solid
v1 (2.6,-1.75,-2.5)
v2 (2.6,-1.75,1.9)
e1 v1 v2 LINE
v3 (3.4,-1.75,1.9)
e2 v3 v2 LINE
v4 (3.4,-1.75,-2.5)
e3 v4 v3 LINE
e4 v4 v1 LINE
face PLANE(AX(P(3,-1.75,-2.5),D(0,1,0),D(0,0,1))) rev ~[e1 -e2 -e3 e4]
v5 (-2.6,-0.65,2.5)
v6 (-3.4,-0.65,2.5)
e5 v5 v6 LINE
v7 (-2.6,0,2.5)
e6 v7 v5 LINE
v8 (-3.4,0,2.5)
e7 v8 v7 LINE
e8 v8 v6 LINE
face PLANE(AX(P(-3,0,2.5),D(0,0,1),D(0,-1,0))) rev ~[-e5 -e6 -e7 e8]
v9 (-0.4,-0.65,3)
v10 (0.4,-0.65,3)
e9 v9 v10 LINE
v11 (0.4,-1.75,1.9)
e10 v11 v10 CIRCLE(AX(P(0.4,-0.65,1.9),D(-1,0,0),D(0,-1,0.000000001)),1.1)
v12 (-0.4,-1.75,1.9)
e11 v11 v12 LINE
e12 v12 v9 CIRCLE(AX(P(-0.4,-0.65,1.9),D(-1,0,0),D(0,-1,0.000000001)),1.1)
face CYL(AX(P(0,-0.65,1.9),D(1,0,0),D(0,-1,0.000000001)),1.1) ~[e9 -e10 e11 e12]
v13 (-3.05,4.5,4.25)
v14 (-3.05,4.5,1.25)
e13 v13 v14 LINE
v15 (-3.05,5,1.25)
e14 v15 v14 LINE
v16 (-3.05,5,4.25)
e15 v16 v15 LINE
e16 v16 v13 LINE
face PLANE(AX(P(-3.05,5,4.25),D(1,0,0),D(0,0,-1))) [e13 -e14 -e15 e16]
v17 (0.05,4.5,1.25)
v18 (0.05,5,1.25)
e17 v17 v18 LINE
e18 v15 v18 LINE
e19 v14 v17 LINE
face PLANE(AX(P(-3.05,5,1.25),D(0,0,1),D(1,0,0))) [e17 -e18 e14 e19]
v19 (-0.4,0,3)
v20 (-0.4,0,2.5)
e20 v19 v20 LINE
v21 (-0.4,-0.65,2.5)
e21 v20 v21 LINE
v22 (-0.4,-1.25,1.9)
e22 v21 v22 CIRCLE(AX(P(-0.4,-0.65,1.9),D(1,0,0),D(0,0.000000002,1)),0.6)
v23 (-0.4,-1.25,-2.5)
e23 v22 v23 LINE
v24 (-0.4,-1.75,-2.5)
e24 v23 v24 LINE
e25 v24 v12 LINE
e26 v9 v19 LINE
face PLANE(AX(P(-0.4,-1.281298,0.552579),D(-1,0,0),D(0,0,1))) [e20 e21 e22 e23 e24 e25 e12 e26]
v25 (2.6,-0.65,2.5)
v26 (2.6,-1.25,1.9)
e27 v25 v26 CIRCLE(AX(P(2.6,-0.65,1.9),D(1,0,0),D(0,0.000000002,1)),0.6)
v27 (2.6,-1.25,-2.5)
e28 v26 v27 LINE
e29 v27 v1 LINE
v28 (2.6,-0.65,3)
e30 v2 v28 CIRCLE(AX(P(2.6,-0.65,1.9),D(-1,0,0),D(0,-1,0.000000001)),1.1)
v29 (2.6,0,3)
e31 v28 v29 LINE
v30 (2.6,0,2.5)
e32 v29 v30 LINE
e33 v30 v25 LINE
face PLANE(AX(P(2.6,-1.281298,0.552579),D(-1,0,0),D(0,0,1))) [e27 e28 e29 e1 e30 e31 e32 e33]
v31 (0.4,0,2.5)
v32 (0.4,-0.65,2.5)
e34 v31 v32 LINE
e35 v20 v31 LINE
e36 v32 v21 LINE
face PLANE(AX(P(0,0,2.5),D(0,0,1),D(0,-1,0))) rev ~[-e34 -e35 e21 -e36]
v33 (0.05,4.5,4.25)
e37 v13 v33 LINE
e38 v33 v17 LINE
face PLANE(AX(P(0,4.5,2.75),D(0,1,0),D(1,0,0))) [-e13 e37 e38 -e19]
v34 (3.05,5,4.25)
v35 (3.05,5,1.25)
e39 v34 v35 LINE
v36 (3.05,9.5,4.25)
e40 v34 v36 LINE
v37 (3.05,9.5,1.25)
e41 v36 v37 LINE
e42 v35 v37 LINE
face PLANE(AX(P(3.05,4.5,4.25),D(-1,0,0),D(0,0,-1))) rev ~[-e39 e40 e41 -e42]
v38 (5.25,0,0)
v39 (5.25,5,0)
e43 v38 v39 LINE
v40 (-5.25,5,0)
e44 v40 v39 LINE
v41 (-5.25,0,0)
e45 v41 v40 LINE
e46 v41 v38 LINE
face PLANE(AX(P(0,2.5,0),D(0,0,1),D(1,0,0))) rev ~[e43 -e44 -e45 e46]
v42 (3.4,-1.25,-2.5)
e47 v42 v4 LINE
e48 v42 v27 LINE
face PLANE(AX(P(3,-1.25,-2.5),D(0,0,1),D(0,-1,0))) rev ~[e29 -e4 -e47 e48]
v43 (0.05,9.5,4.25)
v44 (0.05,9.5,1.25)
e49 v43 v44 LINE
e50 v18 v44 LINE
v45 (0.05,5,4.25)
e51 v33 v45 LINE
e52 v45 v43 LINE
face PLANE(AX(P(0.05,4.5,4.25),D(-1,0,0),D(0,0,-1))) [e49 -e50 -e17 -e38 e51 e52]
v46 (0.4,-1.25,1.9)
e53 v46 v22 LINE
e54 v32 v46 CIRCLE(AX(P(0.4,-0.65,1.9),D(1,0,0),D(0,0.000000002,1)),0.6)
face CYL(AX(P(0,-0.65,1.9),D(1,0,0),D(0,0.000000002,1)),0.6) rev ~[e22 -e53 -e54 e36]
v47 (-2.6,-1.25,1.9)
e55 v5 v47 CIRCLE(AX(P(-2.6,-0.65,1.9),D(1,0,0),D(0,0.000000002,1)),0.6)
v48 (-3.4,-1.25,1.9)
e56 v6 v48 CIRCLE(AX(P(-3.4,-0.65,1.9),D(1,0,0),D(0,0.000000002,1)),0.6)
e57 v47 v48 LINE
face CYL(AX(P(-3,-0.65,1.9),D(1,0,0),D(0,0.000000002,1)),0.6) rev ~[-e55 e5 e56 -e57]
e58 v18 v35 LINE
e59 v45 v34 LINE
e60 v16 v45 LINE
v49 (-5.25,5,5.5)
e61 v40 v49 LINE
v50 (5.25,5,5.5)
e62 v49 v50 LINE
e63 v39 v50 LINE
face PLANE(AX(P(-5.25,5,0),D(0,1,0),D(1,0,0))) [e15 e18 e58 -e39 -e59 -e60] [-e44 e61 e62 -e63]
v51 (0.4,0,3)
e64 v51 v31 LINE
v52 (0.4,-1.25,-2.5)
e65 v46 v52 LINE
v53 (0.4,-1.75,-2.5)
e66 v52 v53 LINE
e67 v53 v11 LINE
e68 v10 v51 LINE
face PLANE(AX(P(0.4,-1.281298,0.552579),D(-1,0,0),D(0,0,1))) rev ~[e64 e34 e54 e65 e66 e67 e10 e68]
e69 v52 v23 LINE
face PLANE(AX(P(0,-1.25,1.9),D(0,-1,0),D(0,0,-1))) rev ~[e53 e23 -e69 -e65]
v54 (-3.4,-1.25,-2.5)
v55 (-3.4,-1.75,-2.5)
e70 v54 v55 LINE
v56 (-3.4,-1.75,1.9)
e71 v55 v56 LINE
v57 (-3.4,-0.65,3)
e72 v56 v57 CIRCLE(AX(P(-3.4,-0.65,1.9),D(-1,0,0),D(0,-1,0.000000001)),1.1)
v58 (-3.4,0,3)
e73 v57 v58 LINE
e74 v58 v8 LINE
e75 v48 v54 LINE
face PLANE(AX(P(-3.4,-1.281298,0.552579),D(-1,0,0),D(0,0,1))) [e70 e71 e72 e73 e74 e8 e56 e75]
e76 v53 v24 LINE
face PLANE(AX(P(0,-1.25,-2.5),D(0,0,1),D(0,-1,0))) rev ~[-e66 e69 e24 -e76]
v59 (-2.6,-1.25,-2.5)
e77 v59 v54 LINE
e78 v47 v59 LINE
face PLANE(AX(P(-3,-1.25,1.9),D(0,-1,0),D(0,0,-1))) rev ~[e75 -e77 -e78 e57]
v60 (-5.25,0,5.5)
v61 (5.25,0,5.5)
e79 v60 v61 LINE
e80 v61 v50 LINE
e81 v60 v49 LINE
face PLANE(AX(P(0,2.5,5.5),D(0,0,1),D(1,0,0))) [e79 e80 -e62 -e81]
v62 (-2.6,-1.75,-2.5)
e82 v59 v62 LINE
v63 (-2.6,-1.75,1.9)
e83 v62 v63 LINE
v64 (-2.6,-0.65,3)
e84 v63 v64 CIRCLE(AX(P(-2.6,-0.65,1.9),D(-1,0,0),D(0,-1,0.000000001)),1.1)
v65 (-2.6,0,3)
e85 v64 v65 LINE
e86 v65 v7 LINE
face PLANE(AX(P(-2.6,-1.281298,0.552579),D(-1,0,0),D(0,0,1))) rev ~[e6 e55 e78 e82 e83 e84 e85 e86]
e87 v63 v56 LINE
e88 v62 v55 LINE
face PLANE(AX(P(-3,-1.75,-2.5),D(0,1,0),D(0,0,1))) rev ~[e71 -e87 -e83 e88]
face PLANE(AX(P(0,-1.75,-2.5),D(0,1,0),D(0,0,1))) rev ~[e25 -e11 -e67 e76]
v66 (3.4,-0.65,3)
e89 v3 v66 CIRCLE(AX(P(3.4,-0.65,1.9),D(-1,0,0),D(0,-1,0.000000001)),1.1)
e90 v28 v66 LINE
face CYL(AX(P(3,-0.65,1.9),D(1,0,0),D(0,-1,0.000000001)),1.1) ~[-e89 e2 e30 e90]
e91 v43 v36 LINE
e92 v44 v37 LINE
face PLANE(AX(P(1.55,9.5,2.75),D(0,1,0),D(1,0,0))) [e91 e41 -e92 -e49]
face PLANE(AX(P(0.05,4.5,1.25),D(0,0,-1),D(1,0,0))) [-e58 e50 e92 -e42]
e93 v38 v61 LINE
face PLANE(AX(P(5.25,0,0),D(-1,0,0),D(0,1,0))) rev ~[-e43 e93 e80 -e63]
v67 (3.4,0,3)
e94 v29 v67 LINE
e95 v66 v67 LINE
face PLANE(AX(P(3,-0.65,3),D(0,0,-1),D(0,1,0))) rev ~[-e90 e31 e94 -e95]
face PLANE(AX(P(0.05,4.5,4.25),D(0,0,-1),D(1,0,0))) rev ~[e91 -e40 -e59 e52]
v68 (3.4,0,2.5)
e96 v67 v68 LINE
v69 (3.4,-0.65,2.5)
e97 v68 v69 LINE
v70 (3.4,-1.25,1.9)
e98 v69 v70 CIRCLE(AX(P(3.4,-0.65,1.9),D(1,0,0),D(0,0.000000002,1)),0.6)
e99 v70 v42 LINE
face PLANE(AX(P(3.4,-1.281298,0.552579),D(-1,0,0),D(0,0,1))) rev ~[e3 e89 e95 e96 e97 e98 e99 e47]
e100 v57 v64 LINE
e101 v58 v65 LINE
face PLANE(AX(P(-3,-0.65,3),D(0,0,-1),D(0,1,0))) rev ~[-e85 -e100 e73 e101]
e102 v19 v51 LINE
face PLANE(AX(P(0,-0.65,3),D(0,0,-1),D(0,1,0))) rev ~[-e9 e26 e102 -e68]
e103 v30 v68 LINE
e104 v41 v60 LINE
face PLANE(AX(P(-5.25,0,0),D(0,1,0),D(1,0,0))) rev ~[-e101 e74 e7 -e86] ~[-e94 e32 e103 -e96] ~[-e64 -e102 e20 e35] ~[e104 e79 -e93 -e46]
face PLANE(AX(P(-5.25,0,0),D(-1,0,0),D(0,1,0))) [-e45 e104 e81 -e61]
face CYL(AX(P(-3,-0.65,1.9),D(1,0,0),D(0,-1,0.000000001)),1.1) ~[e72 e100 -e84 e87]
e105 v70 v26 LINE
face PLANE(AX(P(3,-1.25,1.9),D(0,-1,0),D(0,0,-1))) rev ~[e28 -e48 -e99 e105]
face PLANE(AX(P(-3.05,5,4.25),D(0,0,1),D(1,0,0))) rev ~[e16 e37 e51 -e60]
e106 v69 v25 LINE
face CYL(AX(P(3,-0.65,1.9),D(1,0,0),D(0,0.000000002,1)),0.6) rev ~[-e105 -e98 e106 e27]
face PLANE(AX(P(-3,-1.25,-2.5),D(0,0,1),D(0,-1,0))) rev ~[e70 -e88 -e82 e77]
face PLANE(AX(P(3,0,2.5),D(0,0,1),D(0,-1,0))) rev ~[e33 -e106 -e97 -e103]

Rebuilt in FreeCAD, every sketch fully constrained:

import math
import FreeCAD as App
import Part
import Sketcher
Q = App.Units.Quantity


def add_polygon(sketch, points):
    """Adds a closed chain of lines whose ends are joined by coincident constraints."""
    first, n = sketch.GeometryCount, len(points)
    for a, b in zip(points, points[1:] + points[:1]):
        sketch.addGeometry(Part.LineSegment(App.Vector(*a, 0), App.Vector(*b, 0)), False)
    for i in range(n):
        sketch.addConstraint(Sketcher.Constraint("Coincident", first + i, 2, first + (i + 1) % n, 1))

doc = App.newDocument("Part")
params = doc.addObject("Spreadsheet::Sheet", "Params")
for row, (alias, value) in enumerate([
    ("sketch1_height", "5 mm"),
    ("sketch1_width", "10.5 mm"),
    ("pad1_length", "5.5 mm"),
    ("sketch2_height", "3 mm"),
    ("sketch2_width", "6.1 mm"),
    ("pocket1_length", "0.5 mm"),
    ("sketch3_width", "3 mm"),
    ("pad2_length", "5 mm"),
    ("sketch4_radius", "1.1 mm"),
    ("sketch4_radius2", "0.6 mm"),
    ("sketch4_height", "4.4 mm"),
    ("sketch4_width", "0.65 mm"),
    ("pad3_length", "0.8 mm"),
    ("linearpattern_pitch", "3 mm"),
    ("linearpattern2_pitch", "3 mm"),
], start=1):
    params.set(f"A{row}", alias)
    params.set(f"B{row}", "=" + value)
    params.setAlias(f"B{row}", alias)

body = doc.addObject("PartDesign::Body", "Body")

# Sketch on XY plane
sketch1 = doc.addObject("Sketcher::SketchObject", "Sketch")
body.addObject(sketch1)
sketch1.AttachmentSupport = (doc.XY_Plane, [""])
sketch1.MapMode = "FlatFace"
add_polygon(sketch1, [(-5, 5), (-5, 0), (5, 0), (5, 5)])  # lines 0-3
sketch1.addConstraint([
    Sketcher.Constraint("Vertical", 0),
    Sketcher.Constraint("Horizontal", 1),
    Sketcher.Constraint("Vertical", 2),
    Sketcher.Constraint("Horizontal", 3),
    Sketcher.Constraint("Symmetric", 0, 2, 1, 2, -1, 1),
    Sketcher.Constraint("DistanceY", 0, 2, 0, 1, Q("5 mm")),
    Sketcher.Constraint("DistanceX", 1, 1, 1, 2, Q("10.5 mm")),
])
sketch1.setExpression("Constraints[9]", "Params.sketch1_height")
sketch1.setExpression("Constraints[10]", "Params.sketch1_width")
pad1 = doc.addObject("PartDesign::Pad", "Pad")
body.addObject(pad1)
pad1.Profile = sketch1
pad1.setExpression("Length", "Params.pad1_length")

# Sketch on XZ plane
sketch2 = doc.addObject("Sketcher::SketchObject", "Sketch001")
body.addObject(sketch2)
sketch2.AttachmentSupport = (doc.XZ_Plane, [""])
sketch2.MapMode = "FlatFace"
sketch2.AttachmentOffset = App.Placement(App.Vector(0, 0, -5), App.Rotation())
add_polygon(sketch2, [(-3, 1.2), (-3, 4.2), (3, 4.2), (3, 1.2)])  # lines 0-3
sketch2.addConstraint([
    Sketcher.Constraint("Vertical", 0),
    Sketcher.Constraint("Horizontal", 1),
    Sketcher.Constraint("Vertical", 2),
    Sketcher.Constraint("Horizontal", 3),
    Sketcher.Constraint("DistanceY", 0, 1, 0, 2, Q("3 mm")),
    Sketcher.Constraint("DistanceX", 1, 1, 1, 2, Q("6.1 mm")),
    Sketcher.Constraint("DistanceX", 0, 2, -1, 1, Q("3.05 mm")),
    Sketcher.Constraint("DistanceY", -1, 1, 0, 2, Q("4.25 mm")),
])
sketch2.setExpression("Constraints[8]", "Params.sketch2_height")
sketch2.setExpression("Constraints[9]", "Params.sketch2_width")
pocket1 = doc.addObject("PartDesign::Pocket", "Pocket")
body.addObject(pocket1)
pocket1.Profile = sketch2
pocket1.setExpression("Length", "Params.pocket1_length")
pocket1.Reversed = True

# Sketch on XZ plane
sketch3 = doc.addObject("Sketcher::SketchObject", "Sketch002")
body.addObject(sketch3)
sketch3.AttachmentSupport = (doc.XZ_Plane, [""])
sketch3.MapMode = "FlatFace"
sketch3.AttachmentOffset = App.Placement(App.Vector(0, 0, -4.5), App.Rotation())
add_polygon(sketch3, [(0.1, 1.2), (0.1, 4.2), (3, 4.2), (3, 1.2)])  # lines 0-3
sketch3.addConstraint([
    Sketcher.Constraint("Vertical", 0),
    Sketcher.Constraint("Horizontal", 1),
    Sketcher.Constraint("Vertical", 2),
    Sketcher.Constraint("Horizontal", 3),
    Sketcher.Constraint("Equal", 3, 0),
    Sketcher.Constraint("DistanceX", 1, 1, 1, 2, Q("3 mm")),
    Sketcher.Constraint("DistanceX", -1, 1, 0, 2, Q("0.05 mm")),
    Sketcher.Constraint("DistanceY", -1, 1, 0, 2, Q("4.25 mm")),
])
sketch3.setExpression("Constraints[9]", "Params.sketch3_width")
pad2 = doc.addObject("PartDesign::Pad", "Pad001")
body.addObject(pad2)
pad2.Profile = sketch3
pad2.setExpression("Length", "Params.pad2_length")
pad2.Reversed = True

# Sketch on YZ plane
sketch4 = doc.addObject("Sketcher::SketchObject", "Sketch003")
body.addObject(sketch4)
sketch4.AttachmentSupport = (doc.YZ_Plane, [""])
sketch4.MapMode = "FlatFace"
sketch4.addGeometry([
    Part.LineSegment(App.Vector(-0.7, 2.5, 0), App.Vector(0, 2.5, 0)),  # 0
    Part.LineSegment(App.Vector(0, 2.5, 0), App.Vector(0, 3, 0)),  # 1
    Part.LineSegment(App.Vector(0, 3, 0), App.Vector(-0.7, 3, 0)),  # 2
    Part.ArcOfCircle(Part.Circle(App.Vector(-0.6, 1.9, 0), App.Vector(0, 0, 1), 1.1), math.radians(90), math.radians(180)),  # 3
    Part.LineSegment(App.Vector(-1.8, 1.9, 0), App.Vector(-1.8, -2.5, 0)),  # 4
    Part.LineSegment(App.Vector(-1.8, -2.5, 0), App.Vector(-1.2, -2.5, 0)),  # 5
    Part.LineSegment(App.Vector(-1.2, -2.5, 0), App.Vector(-1.2, 1.9, 0)),  # 6
    Part.ArcOfCircle(Part.Circle(App.Vector(-0.7, 1.9, 0), App.Vector(0, 0, 1), 0.6), math.radians(90), math.radians(180)),  # 7
], False)
sketch4.addConstraint([
    Sketcher.Constraint("Coincident", 0, 2, 1, 1),
    Sketcher.Constraint("Coincident", 1, 2, 2, 1),
    Sketcher.Constraint("Tangent", 2, 2, 3, 1),
    Sketcher.Constraint("Tangent", 3, 2, 4, 1),
    Sketcher.Constraint("Coincident", 4, 2, 5, 1),
    Sketcher.Constraint("Coincident", 5, 2, 6, 1),
    Sketcher.Constraint("Tangent", 6, 2, 7, 2),
    Sketcher.Constraint("Tangent", 7, 1, 0, 1),
    Sketcher.Constraint("Horizontal", 0),
    Sketcher.Constraint("Vertical", 1),
    Sketcher.Constraint("Horizontal", 2),
    Sketcher.Constraint("Vertical", 4),
    Sketcher.Constraint("Horizontal", 5),
    Sketcher.Constraint("Vertical", 6),
    Sketcher.Constraint("Coincident", 7, 3, 3, 3),
    Sketcher.Constraint("PointOnObject", 0, 2, -2),
    Sketcher.Constraint("Radius", 3, Q("1.1 mm")),
    Sketcher.Constraint("Radius", 7, Q("0.6 mm")),
    Sketcher.Constraint("DistanceY", 4, 2, 4, 1, Q("4.4 mm")),
    Sketcher.Constraint("DistanceY", -1, 1, 1, 2, Q("3 mm")),
    Sketcher.Constraint("DistanceX", 0, 1, 0, 2, Q("0.65 mm")),
])
sketch4.setExpression("Constraints[16]", "Params.sketch4_radius")
sketch4.setExpression("Constraints[17]", "Params.sketch4_radius2")
sketch4.setExpression("Constraints[18]", "Params.sketch4_height")
sketch4.setExpression("Constraints[20]", "Params.sketch4_width")
pad3 = doc.addObject("PartDesign::Pad", "Pad002")
body.addObject(pad3)
pad3.Profile = sketch4
pad3.setExpression("Length", "Params.pad3_length")
pad3.Midplane = True
doc.recompute()

linearpattern = doc.addObject("PartDesign::LinearPattern", "LinearPattern")
body.addObject(linearpattern)
linearpattern.Originals = [pad3]
linearpattern.Direction = (doc.X_Axis, [""])
linearpattern.Mode = "offset"
linearpattern.setExpression("Offset", "Params.linearpattern_pitch")
linearpattern.Occurrences = 2
linearpattern.Reversed = True
body.Tip = linearpattern
doc.recompute()

linearpattern2 = doc.addObject("PartDesign::LinearPattern", "LinearPattern001")
body.addObject(linearpattern2)
linearpattern2.Originals = [pad3]
linearpattern2.Direction = (doc.X_Axis, [""])
linearpattern2.Mode = "offset"
linearpattern2.setExpression("Offset", "Params.linearpattern2_pitch")
linearpattern2.Occurrences = 2
body.Tip = linearpattern2

doc.recompute()
